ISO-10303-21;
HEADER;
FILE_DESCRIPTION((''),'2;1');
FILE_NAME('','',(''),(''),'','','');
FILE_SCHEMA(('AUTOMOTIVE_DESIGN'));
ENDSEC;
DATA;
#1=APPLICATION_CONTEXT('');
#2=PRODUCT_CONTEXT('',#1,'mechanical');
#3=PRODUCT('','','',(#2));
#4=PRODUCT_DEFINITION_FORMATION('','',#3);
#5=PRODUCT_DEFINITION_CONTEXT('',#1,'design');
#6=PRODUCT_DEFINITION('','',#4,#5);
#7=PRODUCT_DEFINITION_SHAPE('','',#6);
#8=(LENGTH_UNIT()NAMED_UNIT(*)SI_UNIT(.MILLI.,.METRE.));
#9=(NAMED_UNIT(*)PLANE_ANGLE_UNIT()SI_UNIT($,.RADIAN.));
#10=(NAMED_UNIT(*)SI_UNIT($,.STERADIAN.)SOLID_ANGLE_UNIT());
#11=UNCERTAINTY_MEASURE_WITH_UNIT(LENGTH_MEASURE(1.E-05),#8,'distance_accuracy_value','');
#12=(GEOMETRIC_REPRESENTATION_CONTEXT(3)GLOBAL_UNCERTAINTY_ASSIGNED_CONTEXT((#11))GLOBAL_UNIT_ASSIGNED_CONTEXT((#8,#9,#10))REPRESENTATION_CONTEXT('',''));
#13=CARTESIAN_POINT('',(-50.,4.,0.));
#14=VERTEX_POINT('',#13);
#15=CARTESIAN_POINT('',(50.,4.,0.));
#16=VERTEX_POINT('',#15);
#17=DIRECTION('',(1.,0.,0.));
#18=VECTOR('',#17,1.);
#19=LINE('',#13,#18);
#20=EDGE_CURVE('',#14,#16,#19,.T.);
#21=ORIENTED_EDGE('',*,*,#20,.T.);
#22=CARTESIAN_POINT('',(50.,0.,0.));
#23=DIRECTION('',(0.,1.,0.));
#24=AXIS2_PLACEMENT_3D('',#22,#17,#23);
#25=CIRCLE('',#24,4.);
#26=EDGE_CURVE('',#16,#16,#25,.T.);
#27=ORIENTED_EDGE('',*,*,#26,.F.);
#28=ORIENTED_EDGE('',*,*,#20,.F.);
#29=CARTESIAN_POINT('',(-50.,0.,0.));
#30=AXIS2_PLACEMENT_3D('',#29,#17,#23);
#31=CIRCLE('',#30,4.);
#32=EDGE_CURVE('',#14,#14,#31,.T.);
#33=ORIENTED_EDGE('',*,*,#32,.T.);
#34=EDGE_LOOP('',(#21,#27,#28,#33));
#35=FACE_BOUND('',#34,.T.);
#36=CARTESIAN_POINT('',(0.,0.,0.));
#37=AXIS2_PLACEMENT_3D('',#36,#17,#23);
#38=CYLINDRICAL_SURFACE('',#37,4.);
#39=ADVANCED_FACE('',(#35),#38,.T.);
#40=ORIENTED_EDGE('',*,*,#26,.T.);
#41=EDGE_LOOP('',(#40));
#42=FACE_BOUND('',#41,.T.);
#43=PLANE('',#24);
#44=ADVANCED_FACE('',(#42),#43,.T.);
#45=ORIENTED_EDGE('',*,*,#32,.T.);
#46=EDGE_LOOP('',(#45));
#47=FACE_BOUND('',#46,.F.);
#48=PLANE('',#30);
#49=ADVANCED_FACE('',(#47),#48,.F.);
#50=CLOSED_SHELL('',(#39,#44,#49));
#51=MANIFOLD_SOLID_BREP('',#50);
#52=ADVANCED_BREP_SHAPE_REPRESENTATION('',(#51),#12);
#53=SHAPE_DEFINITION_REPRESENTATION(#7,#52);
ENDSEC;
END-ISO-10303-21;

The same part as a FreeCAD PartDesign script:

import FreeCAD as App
import Part
import Sketcher
from FreeCAD import Vector
Q = App.Units.Quantity

doc = App.newDocument("Part")
body = doc.addObject("PartDesign::Body", "Body")

# Sketch on YZ plane
sketch1 = body.newObject("Sketcher::SketchObject", "Sketch")
sketch1.AttachmentSupport = (doc.getObject("YZ_Plane"), [""])
sketch1.MapMode = "FlatFace"
sketch1.addGeometry(Part.Circle(Vector(0, 0, 0), Vector(0, 0, 1), 4), False)
sketch1.addConstraint(Sketcher.Constraint("Coincident", 0, 3, -1, 1))
sketch1.addConstraint(Sketcher.Constraint("Diameter", 0, Q("8 mm")))
pad1 = body.newObject("PartDesign::Pad", "Pad")
pad1.Profile = sketch1
pad1.Length = 100
pad1.Midplane = True

doc.recompute()
